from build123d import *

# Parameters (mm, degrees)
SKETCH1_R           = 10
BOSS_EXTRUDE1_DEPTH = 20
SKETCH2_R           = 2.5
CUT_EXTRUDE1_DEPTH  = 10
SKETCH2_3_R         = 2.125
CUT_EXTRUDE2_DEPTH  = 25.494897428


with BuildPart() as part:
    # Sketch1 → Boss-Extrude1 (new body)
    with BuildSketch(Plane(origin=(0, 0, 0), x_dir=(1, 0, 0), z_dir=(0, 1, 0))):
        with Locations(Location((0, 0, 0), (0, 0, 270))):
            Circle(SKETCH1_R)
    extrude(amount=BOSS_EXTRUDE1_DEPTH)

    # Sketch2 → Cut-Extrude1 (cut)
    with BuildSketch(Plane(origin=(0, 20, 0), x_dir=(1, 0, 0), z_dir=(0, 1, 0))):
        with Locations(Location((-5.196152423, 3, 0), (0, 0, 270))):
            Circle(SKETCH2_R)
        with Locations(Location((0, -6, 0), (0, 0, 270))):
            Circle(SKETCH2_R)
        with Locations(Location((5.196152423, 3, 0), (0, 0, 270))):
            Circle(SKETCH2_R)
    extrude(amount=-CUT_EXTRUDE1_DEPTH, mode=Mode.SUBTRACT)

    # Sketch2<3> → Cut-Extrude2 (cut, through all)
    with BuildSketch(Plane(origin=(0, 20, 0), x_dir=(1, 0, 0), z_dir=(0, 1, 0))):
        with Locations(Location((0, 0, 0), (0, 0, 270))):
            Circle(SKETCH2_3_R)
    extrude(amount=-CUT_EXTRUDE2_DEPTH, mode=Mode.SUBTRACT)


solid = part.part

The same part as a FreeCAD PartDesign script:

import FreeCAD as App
import Part
import Sketcher
from FreeCAD import Vector
Q = App.Units.Quantity

doc = App.newDocument("Part")
params = doc.addObject("Spreadsheet::Sheet", "Params")
for row, (alias, value) in enumerate([
    ("sketch1_diameter", "20 mm"),
    ("pad1_length", "20 mm"),
    ("sketch2_diameter", "5 mm"),
    ("pocket1_length", "10 mm"),
    ("sketch3_diameter", "4.25 mm"),
], start=1):
    params.set(f"A{row}", alias)
    params.set(f"B{row}", "=" + value)
    params.setAlias(f"B{row}", alias)

body = doc.addObject("PartDesign::Body", "Body")

sketch1 = body.newObject("Sketcher::SketchObject", "Sketch")
sketch1.AttachmentSupport = (doc.getObject("XZ_Plane"), [""])
sketch1.MapMode = "FlatFace"
sketch1.addGeometry(Part.Circle(Vector(0, 0, 0), Vector(0, 0, 1), 10), False)
sketch1.addConstraint([
    Sketcher.Constraint("Coincident", 0, 3, -1, 1),
    Sketcher.Constraint("Diameter", 0, Q("20 mm")),
])
sketch1.setExpression("Constraints[1]", "Params.sketch1_diameter")
pad1 = body.newObject("PartDesign::Pad", "Pad")
pad1.Profile = sketch1
pad1.setExpression("Length", "Params.pad1_length")
pad1.Reversed = True

sketch2 = body.newObject("Sketcher::SketchObject", "Sketch001")
sketch2.AttachmentSupport = (doc.getObject("XZ_Plane"), [""])
sketch2.MapMode = "FlatFace"
sketch2.AttachmentOffset = App.Placement(Vector(0, 0, -20), App.Rotation())
sketch2.addGeometry([
    Part.Circle(Vector(-5.196152, -3, 0), Vector(0, 0, 1), 2.5),
    Part.Circle(Vector(0, 6, 0), Vector(0, 0, 1), 2.5),
    Part.Circle(Vector(5.196152, -3, 0), Vector(0, 0, 1), 2.5),
], False)
sketch2.addConstraint([
    Sketcher.Constraint("Equal", 0, 1),
    Sketcher.Constraint("Equal", 1, 2),
    Sketcher.Constraint("Symmetric", 0, 3, 2, 3, -2),
    Sketcher.Constraint("PointOnObject", 1, 3, -2),
    Sketcher.Constraint("Diameter", 0, Q("5 mm")),
    Sketcher.Constraint("DistanceY", 0, 3, -1, 1, Q("3 mm")),
    Sketcher.Constraint("DistanceY", -1, 1, 1, 3, Q("6 mm")),
    Sketcher.Constraint("DistanceX", 0, 3, -1, 1, Q("5.196152 mm")),
])
sketch2.setExpression("Constraints[4]", "Params.sketch2_diameter")
pocket1 = body.newObject("PartDesign::Pocket", "Pocket")
pocket1.Profile = sketch2
pocket1.setExpression("Length", "Params.pocket1_length")
pocket1.Reversed = True

sketch3 = body.newObject("Sketcher::SketchObject", "Sketch002")
sketch3.AttachmentSupport = (doc.getObject("XZ_Plane"), [""])
sketch3.MapMode = "FlatFace"
sketch3.AttachmentOffset = App.Placement(Vector(0, 0, -20), App.Rotation())
sketch3.addGeometry(Part.Circle(Vector(0, 0, 0), Vector(0, 0, 1), 2.125), False)
sketch3.addConstraint([
    Sketcher.Constraint("Coincident", 0, 3, -1, 1),
    Sketcher.Constraint("Diameter", 0, Q("4.25 mm")),
])
sketch3.setExpression("Constraints[1]", "Params.sketch3_diameter")
pocket2 = body.newObject("PartDesign::Pocket", "Pocket001")
pocket2.Profile = sketch3
pocket2.Type = "ThroughAll"
pocket2.Reversed = True

doc.recompute()
